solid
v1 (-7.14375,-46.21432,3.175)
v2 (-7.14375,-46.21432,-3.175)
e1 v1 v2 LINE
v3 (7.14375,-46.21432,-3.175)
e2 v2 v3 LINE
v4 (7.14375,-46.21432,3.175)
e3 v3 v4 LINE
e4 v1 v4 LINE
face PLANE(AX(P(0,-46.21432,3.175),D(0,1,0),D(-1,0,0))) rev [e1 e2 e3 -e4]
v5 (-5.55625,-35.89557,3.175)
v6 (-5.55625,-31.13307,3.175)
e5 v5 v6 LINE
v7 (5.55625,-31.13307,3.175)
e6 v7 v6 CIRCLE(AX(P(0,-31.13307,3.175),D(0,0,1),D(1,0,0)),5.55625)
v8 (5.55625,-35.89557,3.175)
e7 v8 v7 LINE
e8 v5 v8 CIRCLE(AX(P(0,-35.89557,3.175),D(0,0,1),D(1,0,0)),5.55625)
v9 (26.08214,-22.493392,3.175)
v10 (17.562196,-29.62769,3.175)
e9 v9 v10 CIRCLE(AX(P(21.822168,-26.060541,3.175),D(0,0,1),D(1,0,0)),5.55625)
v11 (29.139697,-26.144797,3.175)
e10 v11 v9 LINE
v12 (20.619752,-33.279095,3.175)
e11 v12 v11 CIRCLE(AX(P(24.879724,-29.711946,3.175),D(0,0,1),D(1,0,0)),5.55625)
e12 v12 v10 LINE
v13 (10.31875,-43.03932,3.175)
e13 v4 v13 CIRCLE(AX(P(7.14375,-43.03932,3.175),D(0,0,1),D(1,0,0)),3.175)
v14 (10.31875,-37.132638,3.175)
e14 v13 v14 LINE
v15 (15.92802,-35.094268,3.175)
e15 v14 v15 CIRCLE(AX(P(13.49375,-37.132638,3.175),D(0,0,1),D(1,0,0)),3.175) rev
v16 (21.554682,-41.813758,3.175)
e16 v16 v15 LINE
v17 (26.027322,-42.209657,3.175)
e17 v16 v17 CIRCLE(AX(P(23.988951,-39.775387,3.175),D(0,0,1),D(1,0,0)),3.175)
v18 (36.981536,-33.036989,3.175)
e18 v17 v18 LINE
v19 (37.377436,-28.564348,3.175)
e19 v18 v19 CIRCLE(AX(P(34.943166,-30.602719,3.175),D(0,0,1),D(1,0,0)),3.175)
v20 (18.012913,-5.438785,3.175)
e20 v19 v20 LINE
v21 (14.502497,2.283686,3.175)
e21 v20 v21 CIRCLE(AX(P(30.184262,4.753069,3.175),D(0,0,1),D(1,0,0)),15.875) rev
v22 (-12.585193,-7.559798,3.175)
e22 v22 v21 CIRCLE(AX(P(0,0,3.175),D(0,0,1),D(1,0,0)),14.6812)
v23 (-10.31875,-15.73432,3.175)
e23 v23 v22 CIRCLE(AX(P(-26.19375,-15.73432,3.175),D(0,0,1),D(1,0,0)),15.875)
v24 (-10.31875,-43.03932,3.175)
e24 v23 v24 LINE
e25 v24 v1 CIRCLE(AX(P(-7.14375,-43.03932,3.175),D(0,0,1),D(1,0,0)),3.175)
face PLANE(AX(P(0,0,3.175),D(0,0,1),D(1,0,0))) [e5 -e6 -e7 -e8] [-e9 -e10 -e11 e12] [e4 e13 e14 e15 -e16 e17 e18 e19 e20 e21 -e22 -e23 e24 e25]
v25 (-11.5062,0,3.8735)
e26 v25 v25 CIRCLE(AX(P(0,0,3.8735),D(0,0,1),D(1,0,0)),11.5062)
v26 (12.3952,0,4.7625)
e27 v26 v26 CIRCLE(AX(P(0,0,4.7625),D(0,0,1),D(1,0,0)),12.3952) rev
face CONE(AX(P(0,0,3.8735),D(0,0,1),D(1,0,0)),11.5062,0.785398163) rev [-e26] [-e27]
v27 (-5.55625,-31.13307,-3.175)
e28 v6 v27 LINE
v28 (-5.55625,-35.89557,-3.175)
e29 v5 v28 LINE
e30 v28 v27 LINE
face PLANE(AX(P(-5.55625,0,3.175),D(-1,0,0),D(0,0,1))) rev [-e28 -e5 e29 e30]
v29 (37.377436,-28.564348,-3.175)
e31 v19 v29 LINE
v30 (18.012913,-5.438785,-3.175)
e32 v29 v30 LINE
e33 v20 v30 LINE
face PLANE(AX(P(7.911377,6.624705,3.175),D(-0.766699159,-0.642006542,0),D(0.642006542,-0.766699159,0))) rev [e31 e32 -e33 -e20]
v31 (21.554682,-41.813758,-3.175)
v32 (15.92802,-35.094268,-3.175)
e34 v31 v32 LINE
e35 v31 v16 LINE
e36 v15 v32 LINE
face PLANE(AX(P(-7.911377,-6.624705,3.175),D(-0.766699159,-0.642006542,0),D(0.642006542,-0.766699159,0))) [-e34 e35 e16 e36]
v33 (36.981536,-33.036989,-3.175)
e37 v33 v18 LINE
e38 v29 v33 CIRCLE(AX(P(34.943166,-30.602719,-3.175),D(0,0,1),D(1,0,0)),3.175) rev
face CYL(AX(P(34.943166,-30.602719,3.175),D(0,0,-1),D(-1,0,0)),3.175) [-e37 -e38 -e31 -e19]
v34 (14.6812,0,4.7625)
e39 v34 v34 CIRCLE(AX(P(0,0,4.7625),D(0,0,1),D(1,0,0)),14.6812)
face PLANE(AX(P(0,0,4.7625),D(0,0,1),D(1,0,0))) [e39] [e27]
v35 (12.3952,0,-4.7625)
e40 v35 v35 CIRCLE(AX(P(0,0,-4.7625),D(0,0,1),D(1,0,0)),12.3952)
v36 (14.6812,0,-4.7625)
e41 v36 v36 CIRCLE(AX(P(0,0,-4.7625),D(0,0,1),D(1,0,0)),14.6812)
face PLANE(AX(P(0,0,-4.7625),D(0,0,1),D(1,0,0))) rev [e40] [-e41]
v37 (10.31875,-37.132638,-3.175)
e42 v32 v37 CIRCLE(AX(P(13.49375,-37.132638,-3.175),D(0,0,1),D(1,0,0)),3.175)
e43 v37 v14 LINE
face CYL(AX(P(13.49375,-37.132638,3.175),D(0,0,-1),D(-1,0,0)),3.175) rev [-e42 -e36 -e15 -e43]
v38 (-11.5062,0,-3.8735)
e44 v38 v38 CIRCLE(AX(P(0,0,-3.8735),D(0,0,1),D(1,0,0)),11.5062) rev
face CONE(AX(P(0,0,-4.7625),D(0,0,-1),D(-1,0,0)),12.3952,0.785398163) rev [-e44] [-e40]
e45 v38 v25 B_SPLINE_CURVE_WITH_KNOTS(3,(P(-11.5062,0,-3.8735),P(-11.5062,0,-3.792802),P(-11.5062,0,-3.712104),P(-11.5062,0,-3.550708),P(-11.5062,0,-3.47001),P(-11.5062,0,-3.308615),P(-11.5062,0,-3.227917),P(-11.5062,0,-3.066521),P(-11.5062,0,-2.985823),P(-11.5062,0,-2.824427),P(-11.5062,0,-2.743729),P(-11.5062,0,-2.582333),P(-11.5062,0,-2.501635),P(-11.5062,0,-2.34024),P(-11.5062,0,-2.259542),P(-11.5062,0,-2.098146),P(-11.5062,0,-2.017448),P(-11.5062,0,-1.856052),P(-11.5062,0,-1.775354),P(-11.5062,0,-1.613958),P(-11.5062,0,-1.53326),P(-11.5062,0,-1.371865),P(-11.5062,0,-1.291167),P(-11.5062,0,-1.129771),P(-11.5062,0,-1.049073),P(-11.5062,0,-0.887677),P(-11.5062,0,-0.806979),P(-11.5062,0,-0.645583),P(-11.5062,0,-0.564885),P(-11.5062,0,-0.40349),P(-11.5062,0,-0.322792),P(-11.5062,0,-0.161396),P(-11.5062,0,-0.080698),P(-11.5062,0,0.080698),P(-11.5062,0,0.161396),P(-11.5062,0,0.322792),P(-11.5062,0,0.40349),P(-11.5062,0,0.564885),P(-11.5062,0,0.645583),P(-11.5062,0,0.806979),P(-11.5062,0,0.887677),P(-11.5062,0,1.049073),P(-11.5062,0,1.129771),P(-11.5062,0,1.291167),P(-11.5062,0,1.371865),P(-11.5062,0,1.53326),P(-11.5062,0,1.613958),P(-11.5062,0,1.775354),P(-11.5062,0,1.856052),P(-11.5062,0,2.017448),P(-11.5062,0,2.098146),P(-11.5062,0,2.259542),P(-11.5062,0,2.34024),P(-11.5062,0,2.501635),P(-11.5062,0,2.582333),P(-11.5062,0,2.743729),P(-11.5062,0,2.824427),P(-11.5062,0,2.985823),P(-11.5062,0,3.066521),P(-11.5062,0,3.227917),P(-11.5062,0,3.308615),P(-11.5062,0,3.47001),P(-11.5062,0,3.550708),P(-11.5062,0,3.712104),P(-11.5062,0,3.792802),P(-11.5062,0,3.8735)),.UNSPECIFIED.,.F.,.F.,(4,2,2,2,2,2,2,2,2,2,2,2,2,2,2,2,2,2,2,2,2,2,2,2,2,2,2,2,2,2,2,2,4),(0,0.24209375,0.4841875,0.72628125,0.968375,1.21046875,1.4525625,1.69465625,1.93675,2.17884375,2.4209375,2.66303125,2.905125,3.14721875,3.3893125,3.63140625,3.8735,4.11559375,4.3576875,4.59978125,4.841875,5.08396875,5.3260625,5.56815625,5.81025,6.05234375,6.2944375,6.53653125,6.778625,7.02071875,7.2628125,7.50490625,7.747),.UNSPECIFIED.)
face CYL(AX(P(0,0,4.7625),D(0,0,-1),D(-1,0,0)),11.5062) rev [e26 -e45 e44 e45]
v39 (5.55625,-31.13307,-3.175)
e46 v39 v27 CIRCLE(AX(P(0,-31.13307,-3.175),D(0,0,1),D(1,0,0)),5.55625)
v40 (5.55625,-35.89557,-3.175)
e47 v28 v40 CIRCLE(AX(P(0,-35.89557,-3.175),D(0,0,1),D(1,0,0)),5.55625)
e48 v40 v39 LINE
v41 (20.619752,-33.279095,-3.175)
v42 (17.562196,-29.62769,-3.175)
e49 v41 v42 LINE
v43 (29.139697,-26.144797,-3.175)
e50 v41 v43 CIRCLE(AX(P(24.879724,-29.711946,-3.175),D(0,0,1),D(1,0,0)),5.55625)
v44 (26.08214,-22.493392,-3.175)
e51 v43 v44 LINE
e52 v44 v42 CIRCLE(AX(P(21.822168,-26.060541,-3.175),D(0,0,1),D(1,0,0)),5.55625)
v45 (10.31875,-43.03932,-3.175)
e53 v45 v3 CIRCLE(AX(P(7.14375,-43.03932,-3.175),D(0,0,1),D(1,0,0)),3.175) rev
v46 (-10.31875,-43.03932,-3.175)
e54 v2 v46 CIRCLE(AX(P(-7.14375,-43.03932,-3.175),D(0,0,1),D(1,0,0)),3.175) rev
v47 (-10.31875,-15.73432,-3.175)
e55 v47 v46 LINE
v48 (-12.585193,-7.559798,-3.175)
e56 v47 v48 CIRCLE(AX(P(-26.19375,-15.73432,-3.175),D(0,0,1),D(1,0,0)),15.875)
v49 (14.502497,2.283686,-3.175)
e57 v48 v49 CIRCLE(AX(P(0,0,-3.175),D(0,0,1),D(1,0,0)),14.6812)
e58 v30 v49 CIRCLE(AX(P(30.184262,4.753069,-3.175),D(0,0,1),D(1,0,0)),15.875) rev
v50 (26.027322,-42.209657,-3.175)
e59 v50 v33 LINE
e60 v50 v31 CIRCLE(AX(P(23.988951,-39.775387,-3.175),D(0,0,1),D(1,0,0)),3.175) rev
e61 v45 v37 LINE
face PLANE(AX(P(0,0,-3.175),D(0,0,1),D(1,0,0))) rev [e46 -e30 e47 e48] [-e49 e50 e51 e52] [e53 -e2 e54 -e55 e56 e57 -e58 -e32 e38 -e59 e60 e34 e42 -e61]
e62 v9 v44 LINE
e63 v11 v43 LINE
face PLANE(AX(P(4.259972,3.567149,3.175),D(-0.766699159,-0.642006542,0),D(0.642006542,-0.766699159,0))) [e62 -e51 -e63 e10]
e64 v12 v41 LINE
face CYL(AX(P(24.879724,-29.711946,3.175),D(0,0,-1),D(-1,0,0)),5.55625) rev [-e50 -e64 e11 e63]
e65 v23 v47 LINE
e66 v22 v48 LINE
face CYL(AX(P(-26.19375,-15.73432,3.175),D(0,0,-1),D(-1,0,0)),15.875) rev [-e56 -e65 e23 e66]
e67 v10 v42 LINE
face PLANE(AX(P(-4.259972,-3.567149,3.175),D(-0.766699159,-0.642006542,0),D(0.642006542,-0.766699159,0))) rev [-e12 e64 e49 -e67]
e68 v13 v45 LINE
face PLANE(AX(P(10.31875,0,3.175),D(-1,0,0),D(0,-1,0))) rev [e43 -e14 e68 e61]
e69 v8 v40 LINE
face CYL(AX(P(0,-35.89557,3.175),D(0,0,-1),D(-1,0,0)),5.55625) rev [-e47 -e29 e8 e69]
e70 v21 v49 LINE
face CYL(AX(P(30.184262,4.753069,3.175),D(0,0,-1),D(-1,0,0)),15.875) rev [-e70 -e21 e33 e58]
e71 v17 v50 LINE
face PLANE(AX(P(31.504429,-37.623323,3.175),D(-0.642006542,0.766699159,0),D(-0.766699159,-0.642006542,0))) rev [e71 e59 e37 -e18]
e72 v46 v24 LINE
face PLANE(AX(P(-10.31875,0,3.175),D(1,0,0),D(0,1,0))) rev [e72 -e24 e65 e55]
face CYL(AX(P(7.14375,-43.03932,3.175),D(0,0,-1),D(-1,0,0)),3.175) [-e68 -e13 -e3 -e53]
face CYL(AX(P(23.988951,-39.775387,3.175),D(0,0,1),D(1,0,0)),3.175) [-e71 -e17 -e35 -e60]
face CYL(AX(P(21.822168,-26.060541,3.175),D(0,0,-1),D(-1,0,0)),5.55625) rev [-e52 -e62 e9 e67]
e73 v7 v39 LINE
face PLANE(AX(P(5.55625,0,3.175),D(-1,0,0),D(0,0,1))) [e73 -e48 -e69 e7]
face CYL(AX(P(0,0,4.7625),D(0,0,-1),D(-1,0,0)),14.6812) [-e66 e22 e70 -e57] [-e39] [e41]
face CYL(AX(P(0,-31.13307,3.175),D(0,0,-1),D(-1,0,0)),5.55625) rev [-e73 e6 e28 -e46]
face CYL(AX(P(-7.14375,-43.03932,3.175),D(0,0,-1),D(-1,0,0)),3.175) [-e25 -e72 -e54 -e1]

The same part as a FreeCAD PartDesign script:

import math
import FreeCAD as App
import Part
import Sketcher

V = App.Vector
Q = App.Units.Quantity


def edges_at(feature, points):
    """Names of the edges that pass closest to the given points."""
    edges = feature.Shape.Edges
    near = lambda p: min(range(len(edges)), key=lambda i: edges[i].distToShape(Part.Vertex(*p))[0])
    return sorted({f"Edge{near(p) + 1}" for p in points})

doc = App.newDocument("Part")
body = doc.addObject("PartDesign::Body", "Body")

# Sketch on XY plane
sketch1 = doc.addObject("Sketcher::SketchObject", "Sketch")
body.addObject(sketch1)
sketch1.AttachmentSupport = (doc.XY_Plane, [""])
sketch1.MapMode = "FlatFace"
sketch1.addGeometry(Part.ArcOfCircle(Part.Circle(V(0, 0, 0), V(0, 0, 1), 14.6812), math.radians(8.948795), math.radians(210.992811)), False)
sketch1.addGeometry(Part.ArcOfCircle(Part.Circle(V(0, 0, 0), V(0, 0, 1), 14.6812), math.radians(-149.007189), math.radians(8.948795)), False)
sketch1.addGeometry(Part.Circle(V(0, 0, 0), V(0, 0, 1), 11.5062), False)
sketch1.addConstraint(Sketcher.Constraint("Tangent", 0, 1, 1, 2))
sketch1.addConstraint(Sketcher.Constraint("Coincident", 1, 1, 0, 2))
sketch1.addConstraint(Sketcher.Constraint("Coincident", 0, 3, -1, 1))
sketch1.addConstraint(Sketcher.Constraint("Coincident", 2, 3, -1, 1))
sketch1.addConstraint(Sketcher.Constraint("Diameter", 2, Q("0.906 in")))
sketch1.addConstraint(Sketcher.Constraint("Radius", 0, Q("0.578 in")))
sketch1.addConstraint(Sketcher.Constraint("DistanceX", 1, 1, 0, 1, 27.08769))
sketch1.addConstraint(Sketcher.Constraint("DistanceX", -1, 1, 0, 1, 14.502497))
pad1 = doc.addObject("PartDesign::Pad", "Pad")
body.addObject(pad1)
pad1.Profile = sketch1
pad1.Length = Q("0.375 in")
pad1.Midplane = True

# Sketch on XY plane
sketch2 = doc.addObject("Sketcher::SketchObject", "Sketch001")
body.addObject(sketch2)
sketch2.AttachmentSupport = (doc.XY_Plane, [""])
sketch2.MapMode = "FlatFace"
sketch2.addGeometry(Part.ArcOfCircle(Part.Circle(V(-26.19375, -15.73432, 0), V(0, 0, 1), 15.875), math.radians(0), math.radians(30.992811)), False)
sketch2.addGeometry(Part.LineSegment(V(-10.31875, -15.73432, 0), V(-10.31875, -46.21432, 0)), False)
sketch2.addGeometry(Part.LineSegment(V(-10.31875, -46.21432, 0), V(10.31875, -46.21432, 0)), False)
sketch2.addGeometry(Part.LineSegment(V(10.31875, -46.21432, 0), V(10.31875, -28.395547, 0)), False)
sketch2.addGeometry(Part.LineSegment(V(10.31875, -28.395547, 0), V(23.593052, -44.248028, 0)), False)
sketch2.addGeometry(Part.LineSegment(V(23.593052, -44.248028, 0), V(39.415806, -30.998618, 0)), False)
sketch2.addGeometry(Part.LineSegment(V(39.415806, -30.998618, 0), V(18.012913, -5.438785, 0)), False)
sketch2.addGeometry(Part.ArcOfCircle(Part.Circle(V(30.184262, 4.753069, 0), V(0, 0, 1), 15.875), math.radians(-171.051205), math.radians(-140.058394)), False)
sketch2.addGeometry(Part.ArcOfCircle(Part.Circle(V(0, 0, 0), V(0, 0, 1), 14.6812), math.radians(8.948795), math.radians(210.992811)), False)
sketch2.addGeometry(Part.LineSegment(V(5.55625, -31.13307, 0), V(5.55625, -35.89557, 0)), False)
sketch2.addGeometry(Part.ArcOfCircle(Part.Circle(V(0, -35.89557, 0), V(0, 0, 1), 5.55625), math.radians(180), math.radians(360)), False)
sketch2.addGeometry(Part.LineSegment(V(-5.55625, -35.89557, 0), V(-5.55625, -31.13307, 0)), False)
sketch2.addGeometry(Part.ArcOfCircle(Part.Circle(V(0, -31.13307, 0), V(0, 0, 1), 5.55625), math.radians(0), math.radians(180)), False)
sketch2.addGeometry(Part.LineSegment(V(26.08214, -22.493392, 0), V(29.139697, -26.144797, 0)), False)
sketch2.addGeometry(Part.ArcOfCircle(Part.Circle(V(24.879724, -29.711946, 0), V(0, 0, 1), 5.55625), math.radians(-140.058394), math.radians(39.941606)), False)
sketch2.addGeometry(Part.LineSegment(V(20.619752, -33.279095, 0), V(17.562196, -29.62769, 0)), False)
sketch2.addGeometry(Part.ArcOfCircle(Part.Circle(V(21.822168, -26.060541, 0), V(0, 0, 1), 5.55625), math.radians(39.941606), math.radians(219.941606)), False)
sketch2.addGeometry(Part.Circle(V(0, 0, 0), V(0, 0, 1), 11.5062), False)
sketch2.addConstraint(Sketcher.Constraint("Tangent", 0, 1, 1, 1))
sketch2.addConstraint(Sketcher.Constraint("Coincident", 1, 2, 2, 1))
sketch2.addConstraint(Sketcher.Constraint("Coincident", 2, 2, 3, 1))
sketch2.addConstraint(Sketcher.Constraint("Coincident", 3, 2, 4, 1))
sketch2.addConstraint(Sketcher.Constraint("Coincident", 4, 2, 5, 1))
sketch2.addConstraint(Sketcher.Constraint("Coincident", 5, 2, 6, 1))
sketch2.addConstraint(Sketcher.Constraint("Tangent", 6, 2, 7, 2))
sketch2.addConstraint(Sketcher.Constraint("Tangent", 7, 1, 8, 1))
sketch2.addConstraint(Sketcher.Constraint("Tangent", 8, 2, 0, 2))
sketch2.addConstraint(Sketcher.Constraint("Tangent", 9, 2, 10, 2))
sketch2.addConstraint(Sketcher.Constraint("Tangent", 10, 1, 11, 1))
sketch2.addConstraint(Sketcher.Constraint("Tangent", 11, 2, 12, 2))
sketch2.addConstraint(Sketcher.Constraint("Tangent", 12, 1, 9, 1))
sketch2.addConstraint(Sketcher.Constraint("Tangent", 13, 2, 14, 2))
sketch2.addConstraint(Sketcher.Constraint("Tangent", 14, 1, 15, 1))
sketch2.addConstraint(Sketcher.Constraint("Tangent", 15, 2, 16, 2))
sketch2.addConstraint(Sketcher.Constraint("Tangent", 16, 1, 13, 1))
sketch2.addConstraint(Sketcher.Constraint("Vertical", 1))
sketch2.addConstraint(Sketcher.Constraint("Horizontal", 2))
sketch2.addConstraint(Sketcher.Constraint("Vertical", 3))
sketch2.addConstraint(Sketcher.Constraint("Vertical", 9))
sketch2.addConstraint(Sketcher.Constraint("Vertical", 11))
sketch2.addConstraint(Sketcher.Constraint("Coincident", 8, 3, -1, 1))
sketch2.addConstraint(Sketcher.Constraint("Coincident", 17, 3, -1, 1))
sketch2.addConstraint(Sketcher.Constraint("Equal", 0, 7))
sketch2.addConstraint(Sketcher.Constraint("Equal", 12, 14))
sketch2.addConstraint(Sketcher.Constraint("Equal", 14, 16))
sketch2.addConstraint(Sketcher.Constraint("PointOnObject", 10, 3, -2))
sketch2.addConstraint(Sketcher.Constraint("Perpendicular", 4, 5))
sketch2.addConstraint(Sketcher.Constraint("Perpendicular", 5, 6))
sketch2.addConstraint(Sketcher.Constraint("Parallel", 6, 13))
sketch2.addConstraint(Sketcher.Constraint("Diameter", 17, Q("0.906 in")))
sketch2.addConstraint(Sketcher.Constraint("DistanceY", 1, 2, 1, 1, Q("1.2 in")))
sketch2.addConstraint(Sketcher.Constraint("Radius", 0, Q("0.625 in")))
sketch2.addConstraint(Sketcher.Constraint("Radius", 8, Q("0.578 in")))
sketch2.addConstraint(Sketcher.Constraint("Radius", 10, Q("0.21875 in")))
sketch2.addConstraint(Sketcher.Constraint("DistanceX", 2, 1, 2, 2, Q("0.8125 in")))
sketch2.addConstraint(Sketcher.Constraint("DistanceY", 9, 2, 9, 1, Q("0.1875 in")))
sketch2.addConstraint(Sketcher.Constraint("Distance", 5, Q("0.8125 in")))
sketch2.addConstraint(Sketcher.Constraint("Distance", 6, Q("1.3125 in")))
sketch2.addConstraint(Sketcher.Constraint("Distance", 13, Q("0.1875 in")))
sketch2.addConstraint(Sketcher.Constraint("DistanceX", 0, 3, -1, 1, Q("1.03125 in")))
sketch2.addConstraint(Sketcher.Constraint("DistanceY", 1, 2, 10, 3, Q("0.40625 in")))
sketch2.addConstraint(Sketcher.Constraint("DistanceY", 14, 3, 3, 2, 1.316399))
sketch2.addConstraint(Sketcher.Constraint("DistanceY", 2, 2, 5, 2, 15.215702))
sketch2.addConstraint(Sketcher.Constraint("DistanceX", 14, 1, 4, 2, 2.9733))
sketch2.addConstraint(Sketcher.Constraint("DistanceX", 15, 2, 13, 2, 11.577501))
pad2 = doc.addObject("PartDesign::Pad", "Pad001")
body.addObject(pad2)
pad2.Profile = sketch2
pad2.Length = Q("0.25 in")
pad2.Midplane = True
doc.recompute()

fillet = doc.addObject("PartDesign::Fillet", "Fillet")
body.addObject(fillet)
fillet.Base = (pad2, edges_at(pad2, [
    (-10.319, -46.214, 0),
    (10.319, -46.214, 0),
    (10.319, -28.396, 0),
    (23.593, -44.248, 0),
    (39.416, -30.999, 0),
]))
fillet.Radius = Q("0.125 in")
doc.recompute()

chamfer = doc.addObject("PartDesign::Chamfer", "Chamfer")
body.addObject(chamfer)
chamfer.Base = (fillet, edges_at(fillet, [(11.506, 0, -4.763), (11.506, 0, 4.763)]))
chamfer.Size = Q("0.035 in")

doc.recompute()
